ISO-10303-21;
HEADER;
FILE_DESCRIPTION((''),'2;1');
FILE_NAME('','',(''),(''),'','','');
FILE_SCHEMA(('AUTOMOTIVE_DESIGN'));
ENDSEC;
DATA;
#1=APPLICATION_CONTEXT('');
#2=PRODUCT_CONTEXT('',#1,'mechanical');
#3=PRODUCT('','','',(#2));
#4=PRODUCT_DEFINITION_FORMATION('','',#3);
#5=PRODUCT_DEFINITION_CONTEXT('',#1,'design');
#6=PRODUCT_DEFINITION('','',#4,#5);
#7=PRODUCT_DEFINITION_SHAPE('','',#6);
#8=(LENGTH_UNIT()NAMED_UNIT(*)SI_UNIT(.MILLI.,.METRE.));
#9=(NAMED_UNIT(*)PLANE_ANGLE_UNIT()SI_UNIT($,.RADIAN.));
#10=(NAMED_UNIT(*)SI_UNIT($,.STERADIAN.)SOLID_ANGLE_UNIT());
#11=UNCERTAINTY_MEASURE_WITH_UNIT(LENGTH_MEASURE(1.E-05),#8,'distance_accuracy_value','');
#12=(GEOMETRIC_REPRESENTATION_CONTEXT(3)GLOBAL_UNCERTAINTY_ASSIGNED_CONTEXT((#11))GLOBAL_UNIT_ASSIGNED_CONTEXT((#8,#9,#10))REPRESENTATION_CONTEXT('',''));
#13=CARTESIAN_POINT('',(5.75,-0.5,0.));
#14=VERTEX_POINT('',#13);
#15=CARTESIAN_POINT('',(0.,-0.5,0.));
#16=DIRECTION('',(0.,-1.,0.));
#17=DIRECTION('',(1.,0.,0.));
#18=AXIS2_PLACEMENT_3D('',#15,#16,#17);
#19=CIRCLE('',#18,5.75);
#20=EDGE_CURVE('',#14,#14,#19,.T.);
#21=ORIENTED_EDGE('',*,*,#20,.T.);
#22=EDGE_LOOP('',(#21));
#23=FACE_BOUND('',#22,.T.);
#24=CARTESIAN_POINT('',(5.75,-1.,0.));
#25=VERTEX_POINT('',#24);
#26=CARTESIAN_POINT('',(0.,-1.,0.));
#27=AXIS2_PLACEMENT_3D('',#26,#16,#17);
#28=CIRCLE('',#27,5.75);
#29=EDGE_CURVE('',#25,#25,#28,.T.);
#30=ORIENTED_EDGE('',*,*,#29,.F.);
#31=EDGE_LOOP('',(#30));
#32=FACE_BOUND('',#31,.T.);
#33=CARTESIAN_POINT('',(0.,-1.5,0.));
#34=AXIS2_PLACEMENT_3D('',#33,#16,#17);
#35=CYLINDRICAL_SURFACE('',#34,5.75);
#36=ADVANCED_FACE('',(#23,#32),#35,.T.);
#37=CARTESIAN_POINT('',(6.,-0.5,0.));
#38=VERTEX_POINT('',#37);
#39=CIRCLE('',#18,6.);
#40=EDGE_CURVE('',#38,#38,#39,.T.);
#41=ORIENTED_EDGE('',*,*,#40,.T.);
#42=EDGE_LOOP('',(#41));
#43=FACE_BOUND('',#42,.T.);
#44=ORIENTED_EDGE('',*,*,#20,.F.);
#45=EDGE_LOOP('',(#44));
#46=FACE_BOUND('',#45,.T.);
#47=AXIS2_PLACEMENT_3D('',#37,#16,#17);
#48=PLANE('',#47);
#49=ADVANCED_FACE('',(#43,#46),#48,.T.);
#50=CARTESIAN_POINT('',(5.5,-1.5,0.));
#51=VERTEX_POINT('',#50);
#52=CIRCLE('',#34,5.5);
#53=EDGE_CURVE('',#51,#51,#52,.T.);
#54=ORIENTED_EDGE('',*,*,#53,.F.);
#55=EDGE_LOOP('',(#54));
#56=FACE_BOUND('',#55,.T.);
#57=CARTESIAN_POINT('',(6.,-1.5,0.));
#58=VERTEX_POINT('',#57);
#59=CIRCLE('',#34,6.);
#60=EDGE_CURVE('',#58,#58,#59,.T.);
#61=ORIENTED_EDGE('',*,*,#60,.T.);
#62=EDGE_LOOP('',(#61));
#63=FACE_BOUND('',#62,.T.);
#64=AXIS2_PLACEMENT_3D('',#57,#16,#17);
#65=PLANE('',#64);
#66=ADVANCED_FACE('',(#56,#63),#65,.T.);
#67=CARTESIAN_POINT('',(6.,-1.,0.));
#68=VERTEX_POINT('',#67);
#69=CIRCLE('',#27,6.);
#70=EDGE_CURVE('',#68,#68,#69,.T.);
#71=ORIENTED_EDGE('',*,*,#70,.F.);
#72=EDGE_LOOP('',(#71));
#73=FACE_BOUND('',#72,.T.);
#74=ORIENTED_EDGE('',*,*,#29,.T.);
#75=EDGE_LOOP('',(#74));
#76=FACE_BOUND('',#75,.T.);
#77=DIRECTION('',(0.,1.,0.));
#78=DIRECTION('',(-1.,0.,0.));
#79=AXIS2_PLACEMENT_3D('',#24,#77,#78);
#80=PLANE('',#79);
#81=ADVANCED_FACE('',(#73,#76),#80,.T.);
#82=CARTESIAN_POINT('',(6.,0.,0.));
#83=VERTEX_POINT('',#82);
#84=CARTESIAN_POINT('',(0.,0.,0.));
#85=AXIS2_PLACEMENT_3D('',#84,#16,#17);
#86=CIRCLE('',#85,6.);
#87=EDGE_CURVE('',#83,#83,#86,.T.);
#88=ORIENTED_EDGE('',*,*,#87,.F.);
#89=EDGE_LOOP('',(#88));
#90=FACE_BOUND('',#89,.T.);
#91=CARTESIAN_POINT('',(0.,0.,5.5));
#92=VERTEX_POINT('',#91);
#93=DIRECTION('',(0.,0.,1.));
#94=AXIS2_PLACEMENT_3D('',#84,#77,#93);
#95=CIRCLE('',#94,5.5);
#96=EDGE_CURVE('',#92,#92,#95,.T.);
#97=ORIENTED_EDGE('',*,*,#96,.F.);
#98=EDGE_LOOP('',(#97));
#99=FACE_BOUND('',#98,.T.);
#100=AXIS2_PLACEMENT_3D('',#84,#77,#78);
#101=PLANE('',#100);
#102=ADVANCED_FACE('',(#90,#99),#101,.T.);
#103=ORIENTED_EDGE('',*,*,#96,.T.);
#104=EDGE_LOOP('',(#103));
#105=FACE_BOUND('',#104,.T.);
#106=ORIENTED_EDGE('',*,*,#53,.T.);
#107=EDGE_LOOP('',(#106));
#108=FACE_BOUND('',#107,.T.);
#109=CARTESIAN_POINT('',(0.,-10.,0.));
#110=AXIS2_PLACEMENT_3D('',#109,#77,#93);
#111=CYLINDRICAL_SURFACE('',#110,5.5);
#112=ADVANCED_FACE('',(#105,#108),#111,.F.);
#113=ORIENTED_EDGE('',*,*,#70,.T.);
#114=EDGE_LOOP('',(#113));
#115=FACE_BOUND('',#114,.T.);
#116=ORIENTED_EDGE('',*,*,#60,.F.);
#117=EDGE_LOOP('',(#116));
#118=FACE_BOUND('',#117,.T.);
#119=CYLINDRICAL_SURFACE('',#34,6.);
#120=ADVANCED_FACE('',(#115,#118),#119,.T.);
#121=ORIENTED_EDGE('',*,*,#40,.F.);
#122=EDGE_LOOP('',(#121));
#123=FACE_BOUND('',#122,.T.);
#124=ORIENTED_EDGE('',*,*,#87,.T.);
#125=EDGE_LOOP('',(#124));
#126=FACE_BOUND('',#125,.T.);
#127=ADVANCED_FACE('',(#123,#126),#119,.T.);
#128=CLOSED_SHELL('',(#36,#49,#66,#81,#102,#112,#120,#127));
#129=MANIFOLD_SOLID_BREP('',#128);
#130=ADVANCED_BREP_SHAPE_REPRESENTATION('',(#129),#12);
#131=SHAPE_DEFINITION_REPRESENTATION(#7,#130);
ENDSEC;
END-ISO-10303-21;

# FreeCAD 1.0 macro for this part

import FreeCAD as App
import Part
import Sketcher

V = App.Vector
Q = App.Units.Quantity


def add_polygon(sketch, points):
    """Adds a closed chain of lines whose ends are joined by coincident constraints."""
    first, n = sketch.GeometryCount, len(points)
    for a, b in zip(points, points[1:] + points[:1]):
        sketch.addGeometry(Part.LineSegment(App.Vector(*a, 0), App.Vector(*b, 0)), False)
    for i in range(n):
        sketch.addConstraint(Sketcher.Constraint("Coincident", first + i, 2, first + (i + 1) % n, 1))

doc = App.newDocument("Part")
params = doc.addObject("Spreadsheet::Sheet", "Params")
for row, (alias, value) in enumerate([
    ("sketch1_width", "6 mm"),
    ("sketch1_height", "1.5 mm"),
    ("sketch1_width2", "0.25 mm"),
    ("revolution_angle", "360 deg"),
    ("sketch2_diameter", "11 mm"),
    ("pocket1_length", "10 mm"),
], start=1):
    params.set(f"A{row}", alias)
    params.set(f"B{row}", "=" + value)
    params.setAlias(f"B{row}", alias)

body = doc.addObject("PartDesign::Body", "Body")

# Sketch on XY plane
sketch1 = body.newObject("Sketcher::SketchObject", "Sketch")
sketch1.AttachmentSupport = (doc.getObject("XY_Plane"), [""])
sketch1.MapMode = "FlatFace"
add_polygon(sketch1, [(6, 0), (0, 0), (0, -1.5), (6, -1.5), (6, -1), (5.75, -1), (5.75, -0.5), (6, -0.5)])  # lines 0-7
sketch1.addConstraint([
    Sketcher.Constraint("Horizontal", 0),
    Sketcher.Constraint("Vertical", 1),
    Sketcher.Constraint("Horizontal", 2),
    Sketcher.Constraint("Vertical", 3),
    Sketcher.Constraint("Horizontal", 4),
    Sketcher.Constraint("Vertical", 5),
    Sketcher.Constraint("Horizontal", 6),
    Sketcher.Constraint("Vertical", 7),
    Sketcher.Constraint("Coincident", 0, 2, -1, 1),
    Sketcher.Constraint("Vertical", 3, 2, 6, 2),
    Sketcher.Constraint("Equal", 3, 5),
    Sketcher.Constraint("Equal", 5, 7),
    Sketcher.Constraint("DistanceX", 0, 2, 0, 1, Q("6 mm")),
    Sketcher.Constraint("DistanceY", 1, 2, 1, 1, Q("1.5 mm")),
    Sketcher.Constraint("DistanceX", 4, 2, 4, 1, Q("0.25 mm")),
])
sketch1.setExpression("Constraints[20]", "Params.sketch1_width")
sketch1.setExpression("Constraints[21]", "Params.sketch1_height")
sketch1.setExpression("Constraints[22]", "Params.sketch1_width2")
revolution = body.newObject("PartDesign::Revolution", "Revolution")
revolution.Profile = sketch1
revolution.ReferenceAxis = (sketch1, ["V_Axis"])
revolution.setExpression("Angle", "Params.revolution_angle")

# Sketch on XZ plane
sketch2 = body.newObject("Sketcher::SketchObject", "Sketch001")
sketch2.AttachmentSupport = (doc.getObject("XZ_Plane"), [""])
sketch2.MapMode = "FlatFace"
sketch2.addGeometry(Part.Circle(V(0, 0, 0), V(0, 0, 1), 5.5), False)
sketch2.addConstraint([
    Sketcher.Constraint("Coincident", 0, 3, -1, 1),
    Sketcher.Constraint("Diameter", 0, Q("11 mm")),
])
sketch2.setExpression("Constraints[1]", "Params.sketch2_diameter")
pocket1 = body.newObject("PartDesign::Pocket", "Pocket")
pocket1.Profile = sketch2
pocket1.setExpression("Length", "Params.pocket1_length")
pocket1.Reversed = True

doc.recompute()
